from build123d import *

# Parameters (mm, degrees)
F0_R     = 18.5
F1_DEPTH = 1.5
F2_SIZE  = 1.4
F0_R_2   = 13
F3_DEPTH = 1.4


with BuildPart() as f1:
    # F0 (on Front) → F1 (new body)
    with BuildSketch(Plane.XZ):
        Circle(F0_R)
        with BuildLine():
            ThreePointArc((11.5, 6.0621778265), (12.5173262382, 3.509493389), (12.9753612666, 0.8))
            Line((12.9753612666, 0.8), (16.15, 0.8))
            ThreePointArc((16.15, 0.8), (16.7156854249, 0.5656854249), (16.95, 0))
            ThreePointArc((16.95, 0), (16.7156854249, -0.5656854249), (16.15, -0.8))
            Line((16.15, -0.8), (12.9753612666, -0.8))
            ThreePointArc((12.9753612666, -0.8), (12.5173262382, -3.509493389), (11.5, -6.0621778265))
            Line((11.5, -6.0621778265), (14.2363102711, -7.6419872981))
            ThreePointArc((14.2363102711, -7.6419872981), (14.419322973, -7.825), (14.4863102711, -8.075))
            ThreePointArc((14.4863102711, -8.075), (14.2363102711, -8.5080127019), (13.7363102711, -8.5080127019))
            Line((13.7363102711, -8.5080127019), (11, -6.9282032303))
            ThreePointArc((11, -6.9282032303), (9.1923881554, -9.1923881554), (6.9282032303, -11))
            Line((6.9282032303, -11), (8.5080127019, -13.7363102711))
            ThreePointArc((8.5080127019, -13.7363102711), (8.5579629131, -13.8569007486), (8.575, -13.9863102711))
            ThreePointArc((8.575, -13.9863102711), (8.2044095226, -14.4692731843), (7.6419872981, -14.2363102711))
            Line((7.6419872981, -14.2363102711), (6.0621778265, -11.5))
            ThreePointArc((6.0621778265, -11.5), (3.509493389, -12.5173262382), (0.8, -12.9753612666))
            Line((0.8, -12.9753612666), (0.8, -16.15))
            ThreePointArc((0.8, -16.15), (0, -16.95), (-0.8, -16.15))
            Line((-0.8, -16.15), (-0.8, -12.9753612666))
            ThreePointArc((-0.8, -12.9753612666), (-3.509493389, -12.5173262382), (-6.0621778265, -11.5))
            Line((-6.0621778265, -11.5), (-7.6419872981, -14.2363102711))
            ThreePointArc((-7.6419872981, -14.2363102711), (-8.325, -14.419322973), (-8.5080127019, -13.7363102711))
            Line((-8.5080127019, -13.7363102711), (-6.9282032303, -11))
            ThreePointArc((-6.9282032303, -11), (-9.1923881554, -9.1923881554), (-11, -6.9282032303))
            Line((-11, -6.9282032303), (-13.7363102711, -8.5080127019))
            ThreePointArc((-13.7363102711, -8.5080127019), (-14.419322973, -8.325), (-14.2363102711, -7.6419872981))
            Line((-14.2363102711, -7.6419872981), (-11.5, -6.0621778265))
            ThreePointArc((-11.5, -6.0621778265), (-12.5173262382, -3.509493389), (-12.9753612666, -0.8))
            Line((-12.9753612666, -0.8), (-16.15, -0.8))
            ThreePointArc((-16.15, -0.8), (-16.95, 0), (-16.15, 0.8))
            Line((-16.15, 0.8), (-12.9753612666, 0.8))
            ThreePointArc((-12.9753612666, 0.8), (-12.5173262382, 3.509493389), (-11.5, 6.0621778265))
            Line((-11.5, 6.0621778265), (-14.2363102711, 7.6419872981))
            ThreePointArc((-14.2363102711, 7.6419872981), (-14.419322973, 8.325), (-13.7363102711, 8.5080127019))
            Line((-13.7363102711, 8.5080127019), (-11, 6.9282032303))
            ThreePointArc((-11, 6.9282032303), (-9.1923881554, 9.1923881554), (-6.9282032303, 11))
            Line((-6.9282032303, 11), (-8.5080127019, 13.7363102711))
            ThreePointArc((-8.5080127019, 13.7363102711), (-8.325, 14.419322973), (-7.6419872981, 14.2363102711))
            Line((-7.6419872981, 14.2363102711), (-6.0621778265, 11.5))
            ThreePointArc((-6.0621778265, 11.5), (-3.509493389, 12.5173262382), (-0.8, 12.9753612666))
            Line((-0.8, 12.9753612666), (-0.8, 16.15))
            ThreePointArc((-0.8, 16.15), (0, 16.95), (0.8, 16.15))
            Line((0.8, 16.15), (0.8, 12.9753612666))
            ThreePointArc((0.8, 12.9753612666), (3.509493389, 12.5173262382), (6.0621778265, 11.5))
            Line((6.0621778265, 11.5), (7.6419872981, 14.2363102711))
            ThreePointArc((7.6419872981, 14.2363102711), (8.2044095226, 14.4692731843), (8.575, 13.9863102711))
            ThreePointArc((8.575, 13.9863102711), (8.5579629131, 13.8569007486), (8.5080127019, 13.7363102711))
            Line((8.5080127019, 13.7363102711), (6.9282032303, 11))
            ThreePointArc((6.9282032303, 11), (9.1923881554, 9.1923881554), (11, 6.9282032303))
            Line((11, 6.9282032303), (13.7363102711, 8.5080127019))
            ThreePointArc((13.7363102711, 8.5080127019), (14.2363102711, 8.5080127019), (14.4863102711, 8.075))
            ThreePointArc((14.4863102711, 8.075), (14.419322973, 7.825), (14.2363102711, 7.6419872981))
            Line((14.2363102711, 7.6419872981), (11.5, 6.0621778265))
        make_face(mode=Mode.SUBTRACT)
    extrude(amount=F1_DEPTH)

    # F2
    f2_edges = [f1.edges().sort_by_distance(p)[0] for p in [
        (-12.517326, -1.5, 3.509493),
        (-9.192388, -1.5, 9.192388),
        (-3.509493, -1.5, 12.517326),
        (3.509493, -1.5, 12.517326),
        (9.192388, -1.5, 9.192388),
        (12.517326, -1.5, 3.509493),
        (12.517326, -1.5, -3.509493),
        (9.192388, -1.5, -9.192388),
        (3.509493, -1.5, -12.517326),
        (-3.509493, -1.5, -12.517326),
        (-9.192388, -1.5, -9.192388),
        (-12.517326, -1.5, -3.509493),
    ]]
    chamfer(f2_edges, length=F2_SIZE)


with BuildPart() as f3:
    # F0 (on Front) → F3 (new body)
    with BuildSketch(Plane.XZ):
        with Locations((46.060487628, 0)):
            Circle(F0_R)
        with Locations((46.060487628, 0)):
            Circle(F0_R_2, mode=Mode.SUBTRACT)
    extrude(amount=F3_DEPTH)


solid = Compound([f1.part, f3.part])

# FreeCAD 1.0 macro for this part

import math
import FreeCAD as App
import Part
import Sketcher

V = App.Vector
Q = App.Units.Quantity


def edges_at(feature, points):
    """Names of the edges that pass closest to the given points."""
    edges = feature.Shape.Edges
    near = lambda p: min(range(len(edges)), key=lambda i: edges[i].distToShape(Part.Vertex(*p))[0])
    return sorted({f"Edge{near(p) + 1}" for p in points})

doc = App.newDocument("Part")
body = doc.addObject("PartDesign::Body", "Body")

# Sketch on XZ plane
sketch1 = doc.addObject("Sketcher::SketchObject", "Sketch")
body.addObject(sketch1)
sketch1.AttachmentSupport = (doc.XZ_Plane, [""])
sketch1.MapMode = "FlatFace"
sketch1.addGeometry([
    Part.Circle(V(0, 0, 0), V(0, 0, 1), 18.5),  # 0
    Part.LineSegment(V(14.23631, 7.641987, 0), V(11.5, 6.062178, 0)),  # 1
    Part.ArcOfCircle(Part.Circle(V(0, 0, 0), V(0, 0, 1), 13), math.radians(3.528123), math.radians(27.795772)),  # 2
    Part.LineSegment(V(12.975361, 0.8, 0), V(16.15, 0.8, 0)),  # 3
    Part.ArcOfCircle(Part.Circle(V(16.15, 0, 0), V(0, 0, 1), 0.8), math.radians(0), math.radians(90)),  # 4
    Part.ArcOfCircle(Part.Circle(V(16.15, 0, 0), V(0, 0, 1), 0.8), math.radians(-90), math.radians(0)),  # 5
    Part.LineSegment(V(16.15, -0.8, 0), V(12.975361, -0.8, 0)),  # 6
    Part.ArcOfCircle(Part.Circle(V(0, 0, 0), V(0, 0, 1), 13), math.radians(-27.795772), math.radians(-3.528123)),  # 7
    Part.LineSegment(V(11.5, -6.062178, 0), V(14.23631, -7.641987, 0)),  # 8
    Part.ArcOfCircle(Part.Circle(V(13.98631, -8.075, 0), V(0, 0, 1), 0.5), math.radians(0), math.radians(60)),  # 9
    Part.ArcOfCircle(Part.Circle(V(13.98631, -8.075, 0), V(0, 0, 1), 0.5), math.radians(-120), math.radians(0)),  # 10
    Part.LineSegment(V(13.73631, -8.508013, 0), V(11, -6.928203, 0)),  # 11
    Part.ArcOfCircle(Part.Circle(V(0, 0, 0), V(0, 0, 1), 13), math.radians(-57.795772), math.radians(-32.204228)),  # 12
    Part.LineSegment(V(6.928203, -11, 0), V(8.508013, -13.73631, 0)),  # 13
    Part.ArcOfCircle(Part.Circle(V(8.075, -13.98631, 0), V(0, 0, 1), 0.5), math.radians(0), math.radians(30)),  # 14
    Part.ArcOfCircle(Part.Circle(V(8.075, -13.98631, 0), V(0, 0, 1), 0.5), math.radians(-150), math.radians(0)),  # 15
    Part.LineSegment(V(7.641987, -14.23631, 0), V(6.062178, -11.5, 0)),  # 16
    Part.ArcOfCircle(Part.Circle(V(0, 0, 0), V(0, 0, 1), 13), math.radians(-86.471877), math.radians(-62.204228)),  # 17
    Part.LineSegment(V(0.8, -12.975361, 0), V(0.8, -16.15, 0)),  # 18
    Part.ArcOfCircle(Part.Circle(V(0, -16.15, 0), V(0, 0, 1), 0.8), math.radians(180), math.radians(360)),  # 19
    Part.LineSegment(V(-0.8, -16.15, 0), V(-0.8, -12.975361, 0)),  # 20
    Part.ArcOfCircle(Part.Circle(V(0, 0, 0), V(0, 0, 1), 13), math.radians(-117.795772), math.radians(-93.528123)),  # 21
    Part.LineSegment(V(-6.062178, -11.5, 0), V(-7.641987, -14.23631, 0)),  # 22
    Part.ArcOfCircle(Part.Circle(V(-8.075, -13.98631, 0), V(0, 0, 1), 0.5), math.radians(150), math.radians(330)),  # 23
    Part.LineSegment(V(-8.508013, -13.73631, 0), V(-6.928203, -11, 0)),  # 24
    Part.ArcOfCircle(Part.Circle(V(0, 0, 0), V(0, 0, 1), 13), math.radians(-147.795772), math.radians(-122.204228)),  # 25
    Part.LineSegment(V(-11, -6.928203, 0), V(-13.73631, -8.508013, 0)),  # 26
    Part.ArcOfCircle(Part.Circle(V(-13.98631, -8.075, 0), V(0, 0, 1), 0.5), math.radians(120), math.radians(300)),  # 27
    Part.LineSegment(V(-14.23631, -7.641987, 0), V(-11.5, -6.062178, 0)),  # 28
    Part.ArcOfCircle(Part.Circle(V(0, 0, 0), V(0, 0, 1), 13), math.radians(-176.471877), math.radians(-152.204228)),  # 29
    Part.LineSegment(V(-12.975361, -0.8, 0), V(-16.15, -0.8, 0)),  # 30
    Part.ArcOfCircle(Part.Circle(V(-16.15, 0, 0), V(0, 0, 1), 0.8), math.radians(90), math.radians(270)),  # 31
    Part.LineSegment(V(-16.15, 0.8, 0), V(-12.975361, 0.8, 0)),  # 32
    Part.ArcOfCircle(Part.Circle(V(0, 0, 0), V(0, 0, 1), 13), math.radians(152.204228), math.radians(176.471877)),  # 33
    Part.LineSegment(V(-11.5, 6.062178, 0), V(-14.23631, 7.641987, 0)),  # 34
    Part.ArcOfCircle(Part.Circle(V(-13.98631, 8.075, 0), V(0, 0, 1), 0.5), math.radians(60), math.radians(240)),  # 35
    Part.LineSegment(V(-13.73631, 8.508013, 0), V(-11, 6.928203, 0)),  # 36
    Part.ArcOfCircle(Part.Circle(V(0, 0, 0), V(0, 0, 1), 13), math.radians(122.204228), math.radians(147.795772)),  # 37
    Part.LineSegment(V(-6.928203, 11, 0), V(-8.508013, 13.73631, 0)),  # 38
    Part.ArcOfCircle(Part.Circle(V(-8.075, 13.98631, 0), V(0, 0, 1), 0.5), math.radians(30), math.radians(210)),  # 39
    Part.LineSegment(V(-7.641987, 14.23631, 0), V(-6.062178, 11.5, 0)),  # 40
    Part.ArcOfCircle(Part.Circle(V(0, 0, 0), V(0, 0, 1), 13), math.radians(93.528123), math.radians(117.795772)),  # 41
    Part.LineSegment(V(-0.8, 12.975361, 0), V(-0.8, 16.15, 0)),  # 42
    Part.ArcOfCircle(Part.Circle(V(0, 16.15, 0), V(0, 0, 1), 0.8), math.radians(0), math.radians(180)),  # 43
    Part.LineSegment(V(0.8, 16.15, 0), V(0.8, 12.975361, 0)),  # 44
    Part.ArcOfCircle(Part.Circle(V(0, 0, 0), V(0, 0, 1), 13), math.radians(62.204228), math.radians(86.471877)),  # 45
    Part.LineSegment(V(6.062178, 11.5, 0), V(7.641987, 14.23631, 0)),  # 46
    Part.ArcOfCircle(Part.Circle(V(8.075, 13.98631, 0), V(0, 0, 1), 0.5), math.radians(0), math.radians(150)),  # 47
    Part.ArcOfCircle(Part.Circle(V(8.075, 13.98631, 0), V(0, 0, 1), 0.5), math.radians(-30), math.radians(0)),  # 48
    Part.LineSegment(V(8.508013, 13.73631, 0), V(6.928203, 11, 0)),  # 49
    Part.ArcOfCircle(Part.Circle(V(0, 0, 0), V(0, 0, 1), 13), math.radians(32.204228), math.radians(57.795772)),  # 50
    Part.LineSegment(V(11, 6.928203, 0), V(13.73631, 8.508013, 0)),  # 51
    Part.ArcOfCircle(Part.Circle(V(13.98631, 8.075, 0), V(0, 0, 1), 0.5), math.radians(0), math.radians(120)),  # 52
    Part.ArcOfCircle(Part.Circle(V(13.98631, 8.075, 0), V(0, 0, 1), 0.5), math.radians(-60), math.radians(0)),  # 53
], False)
sketch1.addConstraint([
    Sketcher.Constraint("Coincident", 1, 2, 2, 2),
    Sketcher.Constraint("Coincident", 2, 1, 3, 1),
    Sketcher.Constraint("Tangent", 3, 2, 4, 2),
    Sketcher.Constraint("Tangent", 4, 1, 5, 2),
    Sketcher.Constraint("Tangent", 5, 1, 6, 1),
    Sketcher.Constraint("Coincident", 6, 2, 7, 2),
    Sketcher.Constraint("Coincident", 7, 1, 8, 1),
    Sketcher.Constraint("Tangent", 8, 2, 9, 2),
    Sketcher.Constraint("Tangent", 9, 1, 10, 2),
    Sketcher.Constraint("Tangent", 10, 1, 11, 1),
    Sketcher.Constraint("Coincident", 11, 2, 12, 2),
    Sketcher.Constraint("Coincident", 12, 1, 13, 1),
    Sketcher.Constraint("Tangent", 13, 2, 14, 2),
    Sketcher.Constraint("Tangent", 14, 1, 15, 2),
    Sketcher.Constraint("Tangent", 15, 1, 16, 1),
    Sketcher.Constraint("Coincident", 16, 2, 17, 2),
    Sketcher.Constraint("Coincident", 17, 1, 18, 1),
    Sketcher.Constraint("Tangent", 18, 2, 19, 2),
    Sketcher.Constraint("Tangent", 19, 1, 20, 1),
    Sketcher.Constraint("Coincident", 20, 2, 21, 2),
    Sketcher.Constraint("Coincident", 21, 1, 22, 1),
    Sketcher.Constraint("Tangent", 22, 2, 23, 2),
    Sketcher.Constraint("Tangent", 23, 1, 24, 1),
    Sketcher.Constraint("Coincident", 24, 2, 25, 2),
    Sketcher.Constraint("Coincident", 25, 1, 26, 1),
    Sketcher.Constraint("Tangent", 26, 2, 27, 2),
    Sketcher.Constraint("Tangent", 27, 1, 28, 1),
    Sketcher.Constraint("Coincident", 28, 2, 29, 2),
    Sketcher.Constraint("Coincident", 29, 1, 30, 1),
    Sketcher.Constraint("Tangent", 30, 2, 31, 2),
    Sketcher.Constraint("Tangent", 31, 1, 32, 1),
    Sketcher.Constraint("Coincident", 32, 2, 33, 2),
    Sketcher.Constraint("Coincident", 33, 1, 34, 1),
    Sketcher.Constraint("Tangent", 34, 2, 35, 2),
    Sketcher.Constraint("Tangent", 35, 1, 36, 1),
    Sketcher.Constraint("Coincident", 36, 2, 37, 2),
    Sketcher.Constraint("Coincident", 37, 1, 38, 1),
    Sketcher.Constraint("Tangent", 38, 2, 39, 2),
    Sketcher.Constraint("Tangent", 39, 1, 40, 1),
    Sketcher.Constraint("Coincident", 40, 2, 41, 2),
    Sketcher.Constraint("Coincident", 41, 1, 42, 1),
    Sketcher.Constraint("Tangent", 42, 2, 43, 2),
    Sketcher.Constraint("Tangent", 43, 1, 44, 1),
    Sketcher.Constraint("Coincident", 44, 2, 45, 2),
    Sketcher.Constraint("Coincident", 45, 1, 46, 1),
    Sketcher.Constraint("Tangent", 46, 2, 47, 2),
    Sketcher.Constraint("Tangent", 47, 1, 48, 2),
    Sketcher.Constraint("Tangent", 48, 1, 49, 1),
    Sketcher.Constraint("Coincident", 49, 2, 50, 2),
    Sketcher.Constraint("Coincident", 50, 1, 51, 1),
    Sketcher.Constraint("Tangent", 51, 2, 52, 2),
    Sketcher.Constraint("Tangent", 52, 1, 53, 2),
    Sketcher.Constraint("Tangent", 53, 1, 1, 1),
    Sketcher.Constraint("Horizontal", 3),
    Sketcher.Constraint("Horizontal", 6),
    Sketcher.Constraint("Vertical", 18),
    Sketcher.Constraint("Vertical", 20),
    Sketcher.Constraint("Horizontal", 30),
    Sketcher.Constraint("Horizontal", 32),
    Sketcher.Constraint("Vertical", 42),
    Sketcher.Constraint("Vertical", 44),
    Sketcher.Constraint("Coincident", 0, 3, -1, 1),
    Sketcher.Constraint("Coincident", 2, 3, -1, 1),
    Sketcher.Constraint("Coincident", 7, 3, -1, 1),
    Sketcher.Constraint("Coincident", 12, 3, -1, 1),
    Sketcher.Constraint("Coincident", 17, 3, -1, 1),
    Sketcher.Constraint("Coincident", 21, 3, -1, 1),
    Sketcher.Constraint("Coincident", 25, 3, -1, 1),
    Sketcher.Constraint("Coincident", 29, 3, -1, 1),
    Sketcher.Constraint("Coincident", 33, 3, -1, 1),
    Sketcher.Constraint("Coincident", 37, 3, -1, 1),
    Sketcher.Constraint("Coincident", 41, 3, -1, 1),
    Sketcher.Constraint("Coincident", 45, 3, -1, 1),
    Sketcher.Constraint("Coincident", 50, 3, -1, 1),
    Sketcher.Constraint("Equal", 4, 5),
    Sketcher.Constraint("Equal", 2, 7),
    Sketcher.Constraint("Equal", 9, 10),
    Sketcher.Constraint("Equal", 7, 12),
    Sketcher.Constraint("Equal", 10, 14),
    Sketcher.Constraint("Equal", 14, 15),
    Sketcher.Constraint("Equal", 12, 17),
    Sketcher.Constraint("Equal", 5, 19),
    Sketcher.Constraint("Equal", 17, 21),
    Sketcher.Constraint("Equal", 15, 23),
    Sketcher.Constraint("Equal", 21, 25),
    Sketcher.Constraint("Equal", 23, 27),
    Sketcher.Constraint("Equal", 25, 29),
    Sketcher.Constraint("Equal", 19, 31),
    Sketcher.Constraint("Equal", 29, 33),
    Sketcher.Constraint("Equal", 27, 35),
    Sketcher.Constraint("Equal", 33, 37),
    Sketcher.Constraint("Equal", 35, 39),
    Sketcher.Constraint("Equal", 37, 41),
    Sketcher.Constraint("Equal", 31, 43),
    Sketcher.Constraint("Equal", 41, 45),
    Sketcher.Constraint("Equal", 39, 47),
    Sketcher.Constraint("Equal", 47, 48),
    Sketcher.Constraint("Equal", 45, 50),
    Sketcher.Constraint("Equal", 48, 52),
    Sketcher.Constraint("Equal", 52, 53),
    Sketcher.Constraint("Symmetric", 4, 3, 31, 3, -1, 1),
    Sketcher.Constraint("Symmetric", 9, 3, 35, 3, -1, 1),
    Sketcher.Constraint("Symmetric", 14, 3, 39, 3, -1, 1),
    Sketcher.Constraint("Symmetric", 19, 3, 43, 3, -1, 1),
    Sketcher.Constraint("Symmetric", 23, 3, 47, 3, -1, 1),
    Sketcher.Constraint("Symmetric", 27, 3, 52, 3, -1, 1),
    Sketcher.Constraint("Symmetric", 14, 3, 23, 3, -2),
    Sketcher.Constraint("Symmetric", 9, 3, 27, 3, -2),
    Sketcher.Constraint("PointOnObject", 4, 3, -1),
    Sketcher.Constraint("PointOnObject", 19, 3, -2),
    Sketcher.Constraint("PointOnObject", 4, 1, -1),
    Sketcher.Constraint("Parallel", 8, 11),
    Sketcher.Constraint("Perpendicular", 1, 13),
    Sketcher.Constraint("Parallel", 13, 16),
    Sketcher.Constraint("Perpendicular", 11, 22),
    Sketcher.Constraint("Parallel", 22, 24),
    Sketcher.Constraint("Perpendicular", 16, 26),
    Sketcher.Constraint("Parallel", 26, 28),
    Sketcher.Constraint("Perpendicular", 24, 34),
    Sketcher.Constraint("Parallel", 34, 36),
    Sketcher.Constraint("Perpendicular", 28, 38),
    Sketcher.Constraint("Parallel", 38, 40),
    Sketcher.Constraint("Perpendicular", 36, 46),
    Sketcher.Constraint("Parallel", 46, 49),
    Sketcher.Constraint("Perpendicular", 40, 51),
    Sketcher.Constraint("Horizontal", 27, 3, 9, 1),
    Sketcher.Constraint("Horizontal", 23, 3, 14, 1),
    Sketcher.Constraint("Horizontal", 16, 2, 21, 1),
    Sketcher.Constraint("Horizontal", 48, 3, 47, 1),
    Sketcher.Constraint("Horizontal", 53, 3, 52, 1),
    Sketcher.Constraint("Equal", 32, 18),
    Sketcher.Constraint("Equal", 8, 11),
    Sketcher.Constraint("Equal", 11, 13),
    Sketcher.Constraint("Equal", 13, 16),
    Sketcher.Constraint("Diameter", 0, 37.0),
    Sketcher.Constraint("Radius", 2, 13.0),
    Sketcher.Constraint("Radius", 4, 0.8),
    Sketcher.Constraint("Radius", 9, 0.5),
    Sketcher.Constraint("Angle", 1, Q("-150 deg")),
    Sketcher.Constraint("DistanceX", -1, 1, 4, 3, 16.15),
    Sketcher.Constraint("DistanceY", 9, 3, -1, 1, 8.075),
])
pad1 = doc.addObject("PartDesign::Pad", "Pad")
body.addObject(pad1)
pad1.Profile = sketch1
pad1.Length = 1.5
doc.recompute()

chamfer = doc.addObject("PartDesign::Chamfer", "Chamfer")
body.addObject(chamfer)
chamfer.Base = (pad1, edges_at(pad1, [
    (-12.517, -1.5, 3.509),
    (-9.192, -1.5, 9.192),
    (-3.509, -1.5, 12.517),
    (3.509, -1.5, 12.517),
    (9.192, -1.5, 9.192),
    (12.517, -1.5, 3.509),
    (12.517, -1.5, -3.509),
    (9.192, -1.5, -9.192),
    (3.509, -1.5, -12.517),
    (-3.509, -1.5, -12.517),
    (-9.192, -1.5, -9.192),
    (-12.517, -1.5, -3.509),
]))
chamfer.Size = 1.4
body2 = doc.addObject("PartDesign::Body", "Body001")

# Sketch on XZ plane
sketch2 = doc.addObject("Sketcher::SketchObject", "Sketch001")
body2.addObject(sketch2)
sketch2.AttachmentSupport = (doc.getObject("XZ_Plane001"), [""])
sketch2.MapMode = "FlatFace"
sketch2.addGeometry([
    Part.Circle(V(46.060488, 0, 0), V(0, 0, 1), 18.5),
    Part.Circle(V(46.060488, 0, 0), V(0, 0, 1), 13),
], False)
sketch2.addConstraint([
    Sketcher.Constraint("Coincident", 1, 3, 0, 3),
    Sketcher.Constraint("PointOnObject", 0, 3, -1),
    Sketcher.Constraint("Diameter", 0, 37.0),
    Sketcher.Constraint("Diameter", 1, 26.0),
    Sketcher.Constraint("DistanceX", -1, 1, 0, 3, 46.060488),
])
pad2 = doc.addObject("PartDesign::Pad", "Pad001")
body2.addObject(pad2)
pad2.Profile = sketch2
pad2.Length = 1.4

doc.recompute()
